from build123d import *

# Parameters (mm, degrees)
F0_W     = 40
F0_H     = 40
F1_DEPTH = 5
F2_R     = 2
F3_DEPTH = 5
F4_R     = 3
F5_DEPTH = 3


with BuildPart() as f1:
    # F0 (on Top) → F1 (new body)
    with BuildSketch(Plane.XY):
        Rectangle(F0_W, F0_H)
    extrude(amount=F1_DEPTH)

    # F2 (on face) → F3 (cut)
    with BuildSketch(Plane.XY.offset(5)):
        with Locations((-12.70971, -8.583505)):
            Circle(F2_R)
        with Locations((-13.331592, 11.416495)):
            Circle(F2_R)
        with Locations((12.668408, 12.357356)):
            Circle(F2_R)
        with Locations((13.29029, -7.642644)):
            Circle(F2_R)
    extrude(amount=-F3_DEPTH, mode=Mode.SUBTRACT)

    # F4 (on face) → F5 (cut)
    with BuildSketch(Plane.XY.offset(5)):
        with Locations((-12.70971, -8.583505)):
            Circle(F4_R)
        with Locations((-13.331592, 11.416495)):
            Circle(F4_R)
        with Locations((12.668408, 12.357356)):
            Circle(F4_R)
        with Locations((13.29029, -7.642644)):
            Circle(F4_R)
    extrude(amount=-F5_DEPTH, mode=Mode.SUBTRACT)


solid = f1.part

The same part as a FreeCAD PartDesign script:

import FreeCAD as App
import Part
import Sketcher

V = App.Vector

doc = App.newDocument("Part")
body = doc.addObject("PartDesign::Body", "Body")

sketch1 = body.newObject("Sketcher::SketchObject", "Sketch")
sketch1.AttachmentSupport = (doc.getObject("XY_Plane"), [""])
sketch1.MapMode = "FlatFace"
sketch1.addGeometry(Part.LineSegment(V(-20, 20, 0), V(-20, -20, 0)), False)
sketch1.addGeometry(Part.LineSegment(V(-20, -20, 0), V(20, -20, 0)), False)
sketch1.addGeometry(Part.LineSegment(V(20, -20, 0), V(20, 20, 0)), False)
sketch1.addGeometry(Part.LineSegment(V(20, 20, 0), V(-20, 20, 0)), False)
sketch1.addConstraint(Sketcher.Constraint("Coincident", 0, 2, 1, 1))
sketch1.addConstraint(Sketcher.Constraint("Coincident", 1, 2, 2, 1))
sketch1.addConstraint(Sketcher.Constraint("Coincident", 2, 2, 3, 1))
sketch1.addConstraint(Sketcher.Constraint("Coincident", 3, 2, 0, 1))
sketch1.addConstraint(Sketcher.Constraint("Vertical", 0))
sketch1.addConstraint(Sketcher.Constraint("Horizontal", 1))
sketch1.addConstraint(Sketcher.Constraint("Vertical", 2))
sketch1.addConstraint(Sketcher.Constraint("Horizontal", 3))
sketch1.addConstraint(Sketcher.Constraint("Symmetric", 0, 2, 2, 2, -1, 1))
sketch1.addConstraint(Sketcher.Constraint("Equal", 3, 0))
sketch1.addConstraint(Sketcher.Constraint("DistanceX", 1, 1, 1, 2, 40.0))
pad1 = body.newObject("PartDesign::Pad", "Pad")
pad1.Profile = sketch1
pad1.Length = 5

sketch2 = body.newObject("Sketcher::SketchObject", "Sketch001")
sketch2.AttachmentSupport = (doc.getObject("XY_Plane"), [""])
sketch2.MapMode = "FlatFace"
sketch2.AttachmentOffset = App.Placement(V(0, 0, 5), App.Rotation())
sketch2.addGeometry(Part.Circle(V(-12.70971, -8.583505, 0), V(0, 0, 1), 2), False)
sketch2.addGeometry(Part.Circle(V(-13.331592, 11.416495, 0), V(0, 0, 1), 2), False)
sketch2.addGeometry(Part.Circle(V(12.668408, 12.357356, 0), V(0, 0, 1), 2), False)
sketch2.addGeometry(Part.Circle(V(13.29029, -7.642644, 0), V(0, 0, 1), 2), False)
sketch2.addConstraint(Sketcher.Constraint("Equal", 0, 1))
sketch2.addConstraint(Sketcher.Constraint("Equal", 1, 2))
sketch2.addConstraint(Sketcher.Constraint("Equal", 2, 3))
sketch2.addConstraint(Sketcher.Constraint("Diameter", 0, 4.0))
sketch2.addConstraint(Sketcher.Constraint("DistanceY", 0, 3, 1, 3, 20.0))
sketch2.addConstraint(Sketcher.Constraint("DistanceX", 1, 3, 2, 3, 26.0))
sketch2.addConstraint(Sketcher.Constraint("DistanceY", 3, 3, 2, 3, 20.0))
sketch2.addConstraint(Sketcher.Constraint("DistanceX", 0, 3, 3, 3, 26.0))
sketch2.addConstraint(Sketcher.Constraint("DistanceX", 0, 3, -1, 1, 12.70971))
sketch2.addConstraint(Sketcher.Constraint("DistanceY", 1, 3, 2, 3, 0.940861))
sketch2.addConstraint(Sketcher.Constraint("DistanceX", 0, 3, 2, 3, 25.378118))
sketch2.addConstraint(Sketcher.Constraint("DistanceY", 0, 3, -1, 1, 8.583505))
pocket1 = body.newObject("PartDesign::Pocket", "Pocket")
pocket1.Profile = sketch2
pocket1.Length = 5

sketch3 = body.newObject("Sketcher::SketchObject", "Sketch002")
sketch3.AttachmentSupport = (doc.getObject("XY_Plane"), [""])
sketch3.MapMode = "FlatFace"
sketch3.AttachmentOffset = App.Placement(V(0, 0, 5), App.Rotation())
sketch3.addGeometry(Part.Circle(V(-12.70971, -8.583505, 0), V(0, 0, 1), 3), False)
sketch3.addGeometry(Part.Circle(V(-13.331592, 11.416495, 0), V(0, 0, 1), 3), False)
sketch3.addGeometry(Part.Circle(V(12.668408, 12.357356, 0), V(0, 0, 1), 3), False)
sketch3.addGeometry(Part.Circle(V(13.29029, -7.642644, 0), V(0, 0, 1), 3), False)
sketch3.addConstraint(Sketcher.Constraint("Equal", 0, 1))
sketch3.addConstraint(Sketcher.Constraint("Equal", 1, 2))
sketch3.addConstraint(Sketcher.Constraint("Equal", 2, 3))
sketch3.addConstraint(Sketcher.Constraint("Diameter", 0, 6.0))
sketch3.addConstraint(Sketcher.Constraint("DistanceY", 0, 3, 1, 3, 20.0))
sketch3.addConstraint(Sketcher.Constraint("DistanceX", 1, 3, 2, 3, 26.0))
sketch3.addConstraint(Sketcher.Constraint("DistanceY", 3, 3, 2, 3, 20.0))
sketch3.addConstraint(Sketcher.Constraint("DistanceX", 0, 3, 3, 3, 26.0))
sketch3.addConstraint(Sketcher.Constraint("DistanceX", 0, 3, -1, 1, 12.70971))
sketch3.addConstraint(Sketcher.Constraint("DistanceY", 1, 3, 2, 3, 0.940861))
sketch3.addConstraint(Sketcher.Constraint("DistanceX", 0, 3, 2, 3, 25.378118))
sketch3.addConstraint(Sketcher.Constraint("DistanceY", 0, 3, -1, 1, 8.583505))
pocket2 = body.newObject("PartDesign::Pocket", "Pocket001")
pocket2.Profile = sketch3
pocket2.Length = 3

doc.recompute()
